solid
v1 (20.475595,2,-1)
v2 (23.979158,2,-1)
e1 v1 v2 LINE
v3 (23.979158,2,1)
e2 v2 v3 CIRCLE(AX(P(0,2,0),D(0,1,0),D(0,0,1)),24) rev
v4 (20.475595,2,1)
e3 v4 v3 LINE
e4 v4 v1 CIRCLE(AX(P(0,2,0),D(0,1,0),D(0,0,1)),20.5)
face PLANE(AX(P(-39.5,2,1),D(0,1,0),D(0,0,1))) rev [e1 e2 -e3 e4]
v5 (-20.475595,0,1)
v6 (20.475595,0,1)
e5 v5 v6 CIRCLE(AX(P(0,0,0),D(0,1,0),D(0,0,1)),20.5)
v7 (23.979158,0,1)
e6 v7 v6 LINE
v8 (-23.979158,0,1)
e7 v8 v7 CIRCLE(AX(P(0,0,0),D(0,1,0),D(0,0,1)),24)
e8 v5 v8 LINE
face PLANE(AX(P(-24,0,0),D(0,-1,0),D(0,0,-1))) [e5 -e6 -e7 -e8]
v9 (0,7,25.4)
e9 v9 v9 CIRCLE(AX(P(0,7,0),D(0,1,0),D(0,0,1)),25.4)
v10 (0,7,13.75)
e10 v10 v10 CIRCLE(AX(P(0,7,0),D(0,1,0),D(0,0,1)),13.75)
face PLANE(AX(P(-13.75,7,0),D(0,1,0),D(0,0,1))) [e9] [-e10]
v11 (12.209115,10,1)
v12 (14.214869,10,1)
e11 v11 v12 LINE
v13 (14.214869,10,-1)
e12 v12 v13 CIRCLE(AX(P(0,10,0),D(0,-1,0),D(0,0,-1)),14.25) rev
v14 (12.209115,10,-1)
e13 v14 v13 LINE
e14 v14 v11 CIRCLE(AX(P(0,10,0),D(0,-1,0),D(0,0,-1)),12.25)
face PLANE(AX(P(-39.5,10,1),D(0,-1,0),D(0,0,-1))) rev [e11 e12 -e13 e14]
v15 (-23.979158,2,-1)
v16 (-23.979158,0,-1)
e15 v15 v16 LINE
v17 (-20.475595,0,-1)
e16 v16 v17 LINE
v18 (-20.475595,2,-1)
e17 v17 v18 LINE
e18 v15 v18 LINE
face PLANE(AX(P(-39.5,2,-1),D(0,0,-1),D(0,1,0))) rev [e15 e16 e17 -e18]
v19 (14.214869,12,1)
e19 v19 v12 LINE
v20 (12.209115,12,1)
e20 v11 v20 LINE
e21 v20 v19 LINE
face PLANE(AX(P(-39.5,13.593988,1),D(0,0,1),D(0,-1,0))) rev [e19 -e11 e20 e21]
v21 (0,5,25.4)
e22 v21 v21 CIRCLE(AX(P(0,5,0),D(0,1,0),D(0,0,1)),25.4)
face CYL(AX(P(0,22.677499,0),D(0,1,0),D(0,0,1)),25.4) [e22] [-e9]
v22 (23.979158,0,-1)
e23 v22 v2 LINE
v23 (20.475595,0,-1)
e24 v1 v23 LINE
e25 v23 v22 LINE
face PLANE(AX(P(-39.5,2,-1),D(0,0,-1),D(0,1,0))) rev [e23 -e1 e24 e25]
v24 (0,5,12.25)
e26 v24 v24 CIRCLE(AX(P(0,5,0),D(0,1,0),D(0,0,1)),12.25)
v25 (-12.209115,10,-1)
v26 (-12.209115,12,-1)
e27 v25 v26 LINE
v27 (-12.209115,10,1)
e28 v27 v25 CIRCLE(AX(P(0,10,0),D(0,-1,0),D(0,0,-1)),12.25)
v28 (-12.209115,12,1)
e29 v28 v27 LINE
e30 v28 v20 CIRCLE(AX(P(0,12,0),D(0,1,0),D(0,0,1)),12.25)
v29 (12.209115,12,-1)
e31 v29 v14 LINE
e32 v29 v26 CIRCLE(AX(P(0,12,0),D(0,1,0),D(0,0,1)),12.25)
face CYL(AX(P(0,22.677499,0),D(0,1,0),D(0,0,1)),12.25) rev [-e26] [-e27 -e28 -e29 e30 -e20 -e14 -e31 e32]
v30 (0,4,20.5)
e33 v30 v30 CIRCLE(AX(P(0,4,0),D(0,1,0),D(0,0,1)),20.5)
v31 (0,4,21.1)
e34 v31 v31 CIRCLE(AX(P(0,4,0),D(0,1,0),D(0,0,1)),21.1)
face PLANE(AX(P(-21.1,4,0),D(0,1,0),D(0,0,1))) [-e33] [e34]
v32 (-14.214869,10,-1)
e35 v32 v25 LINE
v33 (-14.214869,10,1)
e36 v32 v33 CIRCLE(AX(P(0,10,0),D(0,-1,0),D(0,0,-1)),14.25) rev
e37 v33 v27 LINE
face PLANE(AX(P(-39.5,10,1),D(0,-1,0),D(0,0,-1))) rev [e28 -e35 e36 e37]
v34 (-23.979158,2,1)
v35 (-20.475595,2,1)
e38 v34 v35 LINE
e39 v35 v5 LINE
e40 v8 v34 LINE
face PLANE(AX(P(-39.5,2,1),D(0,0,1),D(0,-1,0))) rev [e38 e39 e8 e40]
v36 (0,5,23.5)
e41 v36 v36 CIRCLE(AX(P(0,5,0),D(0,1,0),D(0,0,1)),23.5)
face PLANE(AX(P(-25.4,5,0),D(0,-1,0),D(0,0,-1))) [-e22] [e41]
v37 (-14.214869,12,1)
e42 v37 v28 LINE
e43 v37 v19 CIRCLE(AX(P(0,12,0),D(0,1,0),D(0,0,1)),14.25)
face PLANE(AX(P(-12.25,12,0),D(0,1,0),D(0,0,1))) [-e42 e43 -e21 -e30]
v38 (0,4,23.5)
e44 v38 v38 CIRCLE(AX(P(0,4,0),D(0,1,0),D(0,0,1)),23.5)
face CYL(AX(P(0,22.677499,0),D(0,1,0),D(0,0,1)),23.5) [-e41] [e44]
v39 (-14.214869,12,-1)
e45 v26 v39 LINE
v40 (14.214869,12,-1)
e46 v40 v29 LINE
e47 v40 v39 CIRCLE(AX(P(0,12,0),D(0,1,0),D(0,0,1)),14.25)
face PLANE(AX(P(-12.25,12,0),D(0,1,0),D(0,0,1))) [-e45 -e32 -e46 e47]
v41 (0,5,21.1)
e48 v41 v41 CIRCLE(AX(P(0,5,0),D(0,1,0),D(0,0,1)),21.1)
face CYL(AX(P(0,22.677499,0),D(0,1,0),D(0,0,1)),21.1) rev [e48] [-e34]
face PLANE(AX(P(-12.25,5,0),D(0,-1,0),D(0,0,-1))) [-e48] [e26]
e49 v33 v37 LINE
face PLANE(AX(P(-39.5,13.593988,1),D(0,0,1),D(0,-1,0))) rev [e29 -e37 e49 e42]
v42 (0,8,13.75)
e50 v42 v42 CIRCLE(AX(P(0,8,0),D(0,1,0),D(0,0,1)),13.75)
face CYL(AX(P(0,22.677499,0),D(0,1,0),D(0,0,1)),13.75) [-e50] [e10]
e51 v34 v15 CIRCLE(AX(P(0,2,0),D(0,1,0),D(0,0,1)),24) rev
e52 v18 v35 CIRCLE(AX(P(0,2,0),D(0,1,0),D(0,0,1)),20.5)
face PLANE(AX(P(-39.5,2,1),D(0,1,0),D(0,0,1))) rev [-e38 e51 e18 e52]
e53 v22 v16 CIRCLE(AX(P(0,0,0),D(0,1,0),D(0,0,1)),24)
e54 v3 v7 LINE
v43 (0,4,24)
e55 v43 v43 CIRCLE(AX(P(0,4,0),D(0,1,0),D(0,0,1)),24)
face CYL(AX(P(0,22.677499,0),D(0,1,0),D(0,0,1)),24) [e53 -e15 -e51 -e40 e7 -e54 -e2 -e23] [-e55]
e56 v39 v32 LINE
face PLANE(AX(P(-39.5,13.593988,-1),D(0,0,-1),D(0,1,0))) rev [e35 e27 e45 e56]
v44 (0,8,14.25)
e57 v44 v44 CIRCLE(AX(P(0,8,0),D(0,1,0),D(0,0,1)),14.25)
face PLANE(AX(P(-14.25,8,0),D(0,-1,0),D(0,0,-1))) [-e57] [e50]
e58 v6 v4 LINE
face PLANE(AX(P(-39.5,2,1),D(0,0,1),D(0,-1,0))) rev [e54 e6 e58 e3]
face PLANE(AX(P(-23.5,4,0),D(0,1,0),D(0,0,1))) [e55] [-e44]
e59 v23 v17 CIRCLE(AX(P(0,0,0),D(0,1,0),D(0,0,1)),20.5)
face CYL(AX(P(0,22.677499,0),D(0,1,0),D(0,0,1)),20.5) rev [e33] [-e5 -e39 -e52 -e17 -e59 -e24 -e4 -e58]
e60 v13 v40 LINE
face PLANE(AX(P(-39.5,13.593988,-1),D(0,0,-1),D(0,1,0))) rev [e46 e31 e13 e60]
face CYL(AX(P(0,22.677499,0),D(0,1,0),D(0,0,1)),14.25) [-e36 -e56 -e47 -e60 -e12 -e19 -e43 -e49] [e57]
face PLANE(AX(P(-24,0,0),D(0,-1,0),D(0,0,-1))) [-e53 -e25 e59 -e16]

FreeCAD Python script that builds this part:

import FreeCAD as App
import Part
import Sketcher
from FreeCAD import Vector

doc = App.newDocument("Part")
body = doc.addObject("PartDesign::Body", "Body")

# Sketch on XY plane
sketch1 = doc.addObject("Sketcher::SketchObject", "Sketch")
body.addObject(sketch1)
sketch1.AttachmentSupport = (doc.XY_Plane, [""])
sketch1.MapMode = "FlatFace"
sketch1.addGeometry(Part.LineSegment(Vector(-12.2, 12, 0), Vector(-14.2, 12, 0)), False)
sketch1.addGeometry(Part.LineSegment(Vector(-14.2, 12, 0), Vector(-14.2, 8, 0)), False)
sketch1.addGeometry(Part.LineSegment(Vector(-14.2, 8, 0), Vector(-13.8, 8, 0)), False)
sketch1.addGeometry(Part.LineSegment(Vector(-13.8, 8, 0), Vector(-13.8, 7, 0)), False)
sketch1.addGeometry(Part.LineSegment(Vector(-13.8, 7, 0), Vector(-25.4, 7, 0)), False)
sketch1.addGeometry(Part.LineSegment(Vector(-25.4, 7, 0), Vector(-25.4, 5, 0)), False)
sketch1.addGeometry(Part.LineSegment(Vector(-25.4, 5, 0), Vector(-23.5, 5, 0)), False)
sketch1.addGeometry(Part.LineSegment(Vector(-23.5, 5, 0), Vector(-23.5, 4, 0)), False)
sketch1.addGeometry(Part.LineSegment(Vector(-23.5, 4, 0), Vector(-24, 4, 0)), False)
sketch1.addGeometry(Part.LineSegment(Vector(-24, 4, 0), Vector(-24, 0, 0)), False)
sketch1.addGeometry(Part.LineSegment(Vector(-24, 0, 0), Vector(-20.5, 0, 0)), False)
sketch1.addGeometry(Part.LineSegment(Vector(-20.5, 0, 0), Vector(-20.5, 4, 0)), False)
sketch1.addGeometry(Part.LineSegment(Vector(-20.5, 4, 0), Vector(-21.1, 4, 0)), False)
sketch1.addGeometry(Part.LineSegment(Vector(-21.1, 4, 0), Vector(-21.1, 5, 0)), False)
sketch1.addGeometry(Part.LineSegment(Vector(-21.1, 5, 0), Vector(-12.2, 5, 0)), False)
sketch1.addGeometry(Part.LineSegment(Vector(-12.2, 5, 0), Vector(-12.2, 12, 0)), False)
sketch1.addConstraint(Sketcher.Constraint("Coincident", 0, 2, 1, 1))
sketch1.addConstraint(Sketcher.Constraint("Coincident", 1, 2, 2, 1))
sketch1.addConstraint(Sketcher.Constraint("Coincident", 2, 2, 3, 1))
sketch1.addConstraint(Sketcher.Constraint("Coincident", 3, 2, 4, 1))
sketch1.addConstraint(Sketcher.Constraint("Coincident", 4, 2, 5, 1))
sketch1.addConstraint(Sketcher.Constraint("Coincident", 5, 2, 6, 1))
sketch1.addConstraint(Sketcher.Constraint("Coincident", 6, 2, 7, 1))
sketch1.addConstraint(Sketcher.Constraint("Coincident", 7, 2, 8, 1))
sketch1.addConstraint(Sketcher.Constraint("Coincident", 8, 2, 9, 1))
sketch1.addConstraint(Sketcher.Constraint("Coincident", 9, 2, 10, 1))
sketch1.addConstraint(Sketcher.Constraint("Coincident", 10, 2, 11, 1))
sketch1.addConstraint(Sketcher.Constraint("Coincident", 11, 2, 12, 1))
sketch1.addConstraint(Sketcher.Constraint("Coincident", 12, 2, 13, 1))
sketch1.addConstraint(Sketcher.Constraint("Coincident", 13, 2, 14, 1))
sketch1.addConstraint(Sketcher.Constraint("Coincident", 14, 2, 15, 1))
sketch1.addConstraint(Sketcher.Constraint("Coincident", 15, 2, 0, 1))
sketch1.addConstraint(Sketcher.Constraint("Horizontal", 0))
sketch1.addConstraint(Sketcher.Constraint("Vertical", 1))
sketch1.addConstraint(Sketcher.Constraint("Horizontal", 2))
sketch1.addConstraint(Sketcher.Constraint("Vertical", 3))
sketch1.addConstraint(Sketcher.Constraint("Horizontal", 4))
sketch1.addConstraint(Sketcher.Constraint("Vertical", 5))
sketch1.addConstraint(Sketcher.Constraint("Horizontal", 6))
sketch1.addConstraint(Sketcher.Constraint("Vertical", 7))
sketch1.addConstraint(Sketcher.Constraint("Horizontal", 8))
sketch1.addConstraint(Sketcher.Constraint("Vertical", 9))
sketch1.addConstraint(Sketcher.Constraint("Horizontal", 10))
sketch1.addConstraint(Sketcher.Constraint("Vertical", 11))
sketch1.addConstraint(Sketcher.Constraint("Horizontal", 12))
sketch1.addConstraint(Sketcher.Constraint("Vertical", 13))
sketch1.addConstraint(Sketcher.Constraint("Horizontal", 14))
sketch1.addConstraint(Sketcher.Constraint("Vertical", 15))
sketch1.addConstraint(Sketcher.Constraint("PointOnObject", 9, 2, -1))
sketch1.addConstraint(Sketcher.Constraint("Horizontal", 8, 2, 11, 2))
sketch1.addConstraint(Sketcher.Constraint("Horizontal", 6, 2, 13, 2))
sketch1.addConstraint(Sketcher.Constraint("Equal", 2, 8))
sketch1.addConstraint(Sketcher.Constraint("Equal", 0, 5))
sketch1.addConstraint(Sketcher.Constraint("Equal", 3, 7))
sketch1.addConstraint(Sketcher.Constraint("Equal", 1, 9))
sketch1.addConstraint(Sketcher.Constraint("DistanceX", 0, 2, 0, 1, 2.0))
sketch1.addConstraint(Sketcher.Constraint("DistanceY", 1, 2, 1, 1, 4.0))
sketch1.addConstraint(Sketcher.Constraint("DistanceY", 3, 2, 3, 1, 1.0))
sketch1.addConstraint(Sketcher.Constraint("DistanceX", 2, 1, 2, 2, 0.5))
sketch1.addConstraint(Sketcher.Constraint("DistanceX", 6, 1, 6, 2, 1.9))
sketch1.addConstraint(Sketcher.Constraint("DistanceX", 10, 1, 10, 2, 3.5))
sketch1.addConstraint(Sketcher.Constraint("DistanceX", 12, 2, 12, 1, 0.6))
sketch1.addConstraint(Sketcher.Constraint("DistanceX", 8, 2, -1, 1, 24.0))
sketch1.addConstraint(Sketcher.Constraint("DistanceX", 4, 2, 4, 1, 11.65))
revolution = doc.addObject("PartDesign::Revolution", "Revolution")
body.addObject(revolution)
revolution.Profile = sketch1
revolution.ReferenceAxis = (sketch1, ["V_Axis"])
revolution.Angle = 360

# Sketch on YZ plane
sketch2 = doc.addObject("Sketcher::SketchObject", "Sketch001")
body.addObject(sketch2)
sketch2.AttachmentSupport = (doc.YZ_Plane, [""])
sketch2.MapMode = "FlatFace"
sketch2.addGeometry(Part.LineSegment(Vector(13.6, 1, 0), Vector(10, 1, 0)), False)
sketch2.addGeometry(Part.LineSegment(Vector(10, 1, 0), Vector(10, -1, 0)), False)
sketch2.addGeometry(Part.LineSegment(Vector(10, -1, 0), Vector(13.6, -1, 0)), False)
sketch2.addGeometry(Part.LineSegment(Vector(13.6, -1, 0), Vector(13.6, 1, 0)), False)
sketch2.addGeometry(Part.LineSegment(Vector(2, 1, 0), Vector(-4.7, 1, 0)), False)
sketch2.addGeometry(Part.LineSegment(Vector(-4.7, 1, 0), Vector(-4.7, -1, 0)), False)
sketch2.addGeometry(Part.LineSegment(Vector(-4.7, -1, 0), Vector(2, -1, 0)), False)
sketch2.addGeometry(Part.LineSegment(Vector(2, -1, 0), Vector(2, 1, 0)), False)
sketch2.addConstraint(Sketcher.Constraint("Coincident", 0, 2, 1, 1))
sketch2.addConstraint(Sketcher.Constraint("Coincident", 1, 2, 2, 1))
sketch2.addConstraint(Sketcher.Constraint("Coincident", 2, 2, 3, 1))
sketch2.addConstraint(Sketcher.Constraint("Coincident", 3, 2, 0, 1))
sketch2.addConstraint(Sketcher.Constraint("Coincident", 4, 2, 5, 1))
sketch2.addConstraint(Sketcher.Constraint("Coincident", 5, 2, 6, 1))
sketch2.addConstraint(Sketcher.Constraint("Coincident", 6, 2, 7, 1))
sketch2.addConstraint(Sketcher.Constraint("Coincident", 7, 2, 4, 1))
sketch2.addConstraint(Sketcher.Constraint("Horizontal", 0))
sketch2.addConstraint(Sketcher.Constraint("Vertical", 1))
sketch2.addConstraint(Sketcher.Constraint("Horizontal", 2))
sketch2.addConstraint(Sketcher.Constraint("Vertical", 3))
sketch2.addConstraint(Sketcher.Constraint("Horizontal", 4))
sketch2.addConstraint(Sketcher.Constraint("Vertical", 5))
sketch2.addConstraint(Sketcher.Constraint("Horizontal", 6))
sketch2.addConstraint(Sketcher.Constraint("Vertical", 7))
sketch2.addConstraint(Sketcher.Constraint("Horizontal", 3, 2, 4, 2))
sketch2.addConstraint(Sketcher.Constraint("Horizontal", 2, 2, 5, 2))
sketch2.addConstraint(Sketcher.Constraint("DistanceY", 1, 2, 1, 1, 2.0))
sketch2.addConstraint(Sketcher.Constraint("DistanceX", -1, 1, 0, 2, 10.0))
sketch2.addConstraint(Sketcher.Constraint("DistanceY", -1, 1, 0, 2, 1.0))
sketch2.addConstraint(Sketcher.Constraint("DistanceX", -1, 1, 6, 2, 2.0))
sketch2.addConstraint(Sketcher.Constraint("DistanceX", 0, 2, 0, 1, 3.593988))
sketch2.addConstraint(Sketcher.Constraint("DistanceX", 4, 2, 4, 1, 6.667892))
pocket1 = doc.addObject("PartDesign::Pocket", "Pocket")
body.addObject(pocket1)
pocket1.Profile = sketch2
pocket1.Length = 79
pocket1.Midplane = True

doc.recompute()
